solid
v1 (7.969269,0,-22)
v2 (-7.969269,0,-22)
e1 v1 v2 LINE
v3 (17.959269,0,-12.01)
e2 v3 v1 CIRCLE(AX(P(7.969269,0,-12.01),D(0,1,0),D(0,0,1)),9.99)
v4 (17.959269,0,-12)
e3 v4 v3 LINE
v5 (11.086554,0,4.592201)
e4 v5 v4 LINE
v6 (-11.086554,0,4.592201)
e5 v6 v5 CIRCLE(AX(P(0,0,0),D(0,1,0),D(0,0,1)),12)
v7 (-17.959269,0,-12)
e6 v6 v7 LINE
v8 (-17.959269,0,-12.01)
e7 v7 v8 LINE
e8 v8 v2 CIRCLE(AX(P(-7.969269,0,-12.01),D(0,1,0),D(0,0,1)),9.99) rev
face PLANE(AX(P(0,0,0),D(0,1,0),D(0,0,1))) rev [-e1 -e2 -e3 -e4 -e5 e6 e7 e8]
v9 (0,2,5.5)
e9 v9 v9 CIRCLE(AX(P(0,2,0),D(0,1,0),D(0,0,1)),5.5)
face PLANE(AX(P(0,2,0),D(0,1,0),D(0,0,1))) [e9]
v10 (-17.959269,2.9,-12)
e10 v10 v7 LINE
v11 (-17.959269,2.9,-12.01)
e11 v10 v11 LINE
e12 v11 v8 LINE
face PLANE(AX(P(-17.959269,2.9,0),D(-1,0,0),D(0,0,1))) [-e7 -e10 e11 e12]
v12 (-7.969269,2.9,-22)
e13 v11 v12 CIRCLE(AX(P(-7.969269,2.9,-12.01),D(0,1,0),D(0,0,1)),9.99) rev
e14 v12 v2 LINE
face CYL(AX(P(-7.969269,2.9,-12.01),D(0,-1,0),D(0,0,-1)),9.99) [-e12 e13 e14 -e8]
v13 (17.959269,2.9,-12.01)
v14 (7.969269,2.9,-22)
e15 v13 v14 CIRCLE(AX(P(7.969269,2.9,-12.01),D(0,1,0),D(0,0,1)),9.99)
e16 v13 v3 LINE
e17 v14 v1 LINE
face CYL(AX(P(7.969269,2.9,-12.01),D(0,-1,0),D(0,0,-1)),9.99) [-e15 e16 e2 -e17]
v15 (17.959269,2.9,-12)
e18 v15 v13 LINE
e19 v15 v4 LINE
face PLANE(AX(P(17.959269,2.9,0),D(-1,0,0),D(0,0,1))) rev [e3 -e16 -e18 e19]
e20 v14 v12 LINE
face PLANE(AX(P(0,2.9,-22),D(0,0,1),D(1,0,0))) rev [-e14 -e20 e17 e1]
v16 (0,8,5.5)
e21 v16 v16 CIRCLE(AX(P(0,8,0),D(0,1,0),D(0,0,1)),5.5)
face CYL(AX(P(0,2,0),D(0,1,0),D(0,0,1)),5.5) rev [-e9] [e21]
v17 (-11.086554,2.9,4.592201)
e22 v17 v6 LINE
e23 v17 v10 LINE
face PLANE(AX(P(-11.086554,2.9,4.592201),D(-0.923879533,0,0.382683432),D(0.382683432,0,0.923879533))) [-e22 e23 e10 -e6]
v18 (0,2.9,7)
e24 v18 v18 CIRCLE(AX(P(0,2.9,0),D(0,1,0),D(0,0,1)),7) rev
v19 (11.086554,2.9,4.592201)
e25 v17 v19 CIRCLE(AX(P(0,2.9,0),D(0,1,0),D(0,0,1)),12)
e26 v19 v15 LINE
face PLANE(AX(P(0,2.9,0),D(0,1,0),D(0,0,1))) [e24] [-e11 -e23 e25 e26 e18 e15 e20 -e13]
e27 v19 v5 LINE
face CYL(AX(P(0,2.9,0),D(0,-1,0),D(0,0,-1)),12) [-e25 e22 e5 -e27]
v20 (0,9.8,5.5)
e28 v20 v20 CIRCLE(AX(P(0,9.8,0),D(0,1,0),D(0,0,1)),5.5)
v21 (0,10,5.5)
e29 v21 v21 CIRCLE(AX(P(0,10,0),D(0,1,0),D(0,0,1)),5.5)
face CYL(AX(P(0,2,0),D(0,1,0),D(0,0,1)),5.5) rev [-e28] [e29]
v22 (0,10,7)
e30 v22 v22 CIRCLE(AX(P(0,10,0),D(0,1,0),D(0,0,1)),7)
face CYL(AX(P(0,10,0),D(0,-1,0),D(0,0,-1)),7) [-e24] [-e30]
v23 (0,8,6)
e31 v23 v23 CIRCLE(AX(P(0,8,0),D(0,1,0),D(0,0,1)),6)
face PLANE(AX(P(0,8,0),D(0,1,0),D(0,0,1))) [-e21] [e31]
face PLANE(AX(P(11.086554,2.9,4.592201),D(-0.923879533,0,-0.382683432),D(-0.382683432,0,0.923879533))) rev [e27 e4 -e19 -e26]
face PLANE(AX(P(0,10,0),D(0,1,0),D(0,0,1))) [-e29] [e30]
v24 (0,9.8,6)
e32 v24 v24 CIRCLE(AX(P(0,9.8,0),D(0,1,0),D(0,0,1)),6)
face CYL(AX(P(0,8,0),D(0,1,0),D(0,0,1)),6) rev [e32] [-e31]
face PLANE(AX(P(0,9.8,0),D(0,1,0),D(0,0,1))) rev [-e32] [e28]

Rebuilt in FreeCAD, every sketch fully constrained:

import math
import FreeCAD as App
import Part
import Sketcher

V = App.Vector
Q = App.Units.Quantity

doc = App.newDocument("Part")
body = doc.addObject("PartDesign::Body", "Body")

sketch1 = body.newObject("Sketcher::SketchObject", "Sketch")
sketch1.AttachmentSupport = (doc.getObject("XZ_Plane"), [""])
sketch1.MapMode = "FlatFace"
sketch1.addGeometry(Part.ArcOfCircle(Part.Circle(V(0, 0, 0), V(0, 0, 1), 12), math.radians(22), math.radians(157)), False)
sketch1.addGeometry(Part.LineSegment(V(11.087, 4.592, 0), V(17.959, -12, 0)), False)
sketch1.addGeometry(Part.LineSegment(V(17.959, -12, 0), V(17.959, -12.01, 0)), False)
sketch1.addGeometry(Part.ArcOfCircle(Part.Circle(V(7.969, -12.01, 0), V(0, 0, 1), 9.99), math.radians(-90), math.radians(0)), False)
sketch1.addGeometry(Part.LineSegment(V(7.969, -22, 0), V(-7.969, -22, 0)), False)
sketch1.addGeometry(Part.ArcOfCircle(Part.Circle(V(-7.969, -12.01, 0), V(0, 0, 1), 9.99), math.radians(180), math.radians(270)), False)
sketch1.addGeometry(Part.LineSegment(V(-17.959, -12.01, 0), V(-17.959, -12, 0)), False)
sketch1.addGeometry(Part.LineSegment(V(-17.959, -12, 0), V(-11.087, 4.592, 0)), False)
sketch1.addConstraint(Sketcher.Constraint("Tangent", 0, 1, 1, 1))
sketch1.addConstraint(Sketcher.Constraint("Coincident", 1, 2, 2, 1))
sketch1.addConstraint(Sketcher.Constraint("Tangent", 2, 2, 3, 2))
sketch1.addConstraint(Sketcher.Constraint("Tangent", 3, 1, 4, 1))
sketch1.addConstraint(Sketcher.Constraint("Tangent", 4, 2, 5, 2))
sketch1.addConstraint(Sketcher.Constraint("Tangent", 5, 1, 6, 1))
sketch1.addConstraint(Sketcher.Constraint("Coincident", 6, 2, 7, 1))
sketch1.addConstraint(Sketcher.Constraint("Tangent", 7, 2, 0, 2))
sketch1.addConstraint(Sketcher.Constraint("Horizontal", 4))
sketch1.addConstraint(Sketcher.Constraint("Coincident", 0, 3, -1, 1))
sketch1.addConstraint(Sketcher.Constraint("Equal", 3, 5))
sketch1.addConstraint(Sketcher.Constraint("Symmetric", 2, 2, 5, 1, -2))
sketch1.addConstraint(Sketcher.Constraint("Horizontal", 5, 3, 2, 2))
sketch1.addConstraint(Sketcher.Constraint("Horizontal", 1, 2, 6, 2))
sketch1.addConstraint(Sketcher.Constraint("Radius", 0, Q("12 mm")))
sketch1.addConstraint(Sketcher.Constraint("Radius", 3, Q("9.99 mm")))
sketch1.addConstraint(Sketcher.Constraint("DistanceY", 1, 2, -1, 1, Q("12 mm")))
sketch1.addConstraint(Sketcher.Constraint("DistanceY", 3, 1, -1, 1, Q("22 mm")))
sketch1.addConstraint(Sketcher.Constraint("Angle", 1, Q("-67.5 deg")))
pad1 = body.newObject("PartDesign::Pad", "Pad")
pad1.Profile = sketch1
pad1.Length = 2.9
pad1.Reversed = True

sketch2 = body.newObject("Sketcher::SketchObject", "Sketch001")
sketch2.AttachmentSupport = (doc.getObject("XZ_Plane"), [""])
sketch2.MapMode = "FlatFace"
sketch2.addGeometry(Part.Circle(V(0, 0, 0), V(0, 0, 1), 7), False)
sketch2.addConstraint(Sketcher.Constraint("Coincident", 0, 3, -1, 1))
sketch2.addConstraint(Sketcher.Constraint("Diameter", 0, Q("14 mm")))
pad2 = body.newObject("PartDesign::Pad", "Pad001")
pad2.Profile = sketch2
pad2.Length = 10
pad2.Reversed = True

sketch3 = body.newObject("Sketcher::SketchObject", "Sketch002")
sketch3.AttachmentSupport = (doc.getObject("XZ_Plane"), [""])
sketch3.MapMode = "FlatFace"
sketch3.AttachmentOffset = App.Placement(V(0, 0, -10), App.Rotation())
sketch3.addGeometry(Part.Circle(V(0, 0, 0), V(0, 0, 1), 6), False)
sketch3.addConstraint(Sketcher.Constraint("Coincident", 0, 3, -1, 1))
sketch3.addConstraint(Sketcher.Constraint("Diameter", 0, Q("11 mm")))
pocket1 = body.newObject("PartDesign::Pocket", "Pocket")
pocket1.Profile = sketch3
pocket1.Length = 8
pocket1.Reversed = True

sketch4 = body.newObject("Sketcher::SketchObject", "Sketch003")
sketch4.AttachmentSupport = (doc.getObject("XZ_Plane"), [""])
sketch4.MapMode = "FlatFace"
sketch4.AttachmentOffset = App.Placement(V(0, 0, -9.8), App.Rotation())
sketch4.addGeometry(Part.Circle(V(0, 0, 0), V(0, 0, 1), 6), False)
sketch4.addGeometry(Part.Circle(V(0, 0, 0), V(0, 0, 1), 6), False)
sketch4.addConstraint(Sketcher.Constraint("Coincident", 0, 3, -1, 1))
sketch4.addConstraint(Sketcher.Constraint("Coincident", 1, 3, -1, 1))
sketch4.addConstraint(Sketcher.Constraint("Diameter", 0, Q("12 mm")))
sketch4.addConstraint(Sketcher.Constraint("Diameter", 1, Q("11 mm")))
pocket2 = body.newObject("PartDesign::Pocket", "Pocket001")
pocket2.Profile = sketch4
pocket2.Length = 1.8
pocket2.Reversed = True

doc.recompute()
